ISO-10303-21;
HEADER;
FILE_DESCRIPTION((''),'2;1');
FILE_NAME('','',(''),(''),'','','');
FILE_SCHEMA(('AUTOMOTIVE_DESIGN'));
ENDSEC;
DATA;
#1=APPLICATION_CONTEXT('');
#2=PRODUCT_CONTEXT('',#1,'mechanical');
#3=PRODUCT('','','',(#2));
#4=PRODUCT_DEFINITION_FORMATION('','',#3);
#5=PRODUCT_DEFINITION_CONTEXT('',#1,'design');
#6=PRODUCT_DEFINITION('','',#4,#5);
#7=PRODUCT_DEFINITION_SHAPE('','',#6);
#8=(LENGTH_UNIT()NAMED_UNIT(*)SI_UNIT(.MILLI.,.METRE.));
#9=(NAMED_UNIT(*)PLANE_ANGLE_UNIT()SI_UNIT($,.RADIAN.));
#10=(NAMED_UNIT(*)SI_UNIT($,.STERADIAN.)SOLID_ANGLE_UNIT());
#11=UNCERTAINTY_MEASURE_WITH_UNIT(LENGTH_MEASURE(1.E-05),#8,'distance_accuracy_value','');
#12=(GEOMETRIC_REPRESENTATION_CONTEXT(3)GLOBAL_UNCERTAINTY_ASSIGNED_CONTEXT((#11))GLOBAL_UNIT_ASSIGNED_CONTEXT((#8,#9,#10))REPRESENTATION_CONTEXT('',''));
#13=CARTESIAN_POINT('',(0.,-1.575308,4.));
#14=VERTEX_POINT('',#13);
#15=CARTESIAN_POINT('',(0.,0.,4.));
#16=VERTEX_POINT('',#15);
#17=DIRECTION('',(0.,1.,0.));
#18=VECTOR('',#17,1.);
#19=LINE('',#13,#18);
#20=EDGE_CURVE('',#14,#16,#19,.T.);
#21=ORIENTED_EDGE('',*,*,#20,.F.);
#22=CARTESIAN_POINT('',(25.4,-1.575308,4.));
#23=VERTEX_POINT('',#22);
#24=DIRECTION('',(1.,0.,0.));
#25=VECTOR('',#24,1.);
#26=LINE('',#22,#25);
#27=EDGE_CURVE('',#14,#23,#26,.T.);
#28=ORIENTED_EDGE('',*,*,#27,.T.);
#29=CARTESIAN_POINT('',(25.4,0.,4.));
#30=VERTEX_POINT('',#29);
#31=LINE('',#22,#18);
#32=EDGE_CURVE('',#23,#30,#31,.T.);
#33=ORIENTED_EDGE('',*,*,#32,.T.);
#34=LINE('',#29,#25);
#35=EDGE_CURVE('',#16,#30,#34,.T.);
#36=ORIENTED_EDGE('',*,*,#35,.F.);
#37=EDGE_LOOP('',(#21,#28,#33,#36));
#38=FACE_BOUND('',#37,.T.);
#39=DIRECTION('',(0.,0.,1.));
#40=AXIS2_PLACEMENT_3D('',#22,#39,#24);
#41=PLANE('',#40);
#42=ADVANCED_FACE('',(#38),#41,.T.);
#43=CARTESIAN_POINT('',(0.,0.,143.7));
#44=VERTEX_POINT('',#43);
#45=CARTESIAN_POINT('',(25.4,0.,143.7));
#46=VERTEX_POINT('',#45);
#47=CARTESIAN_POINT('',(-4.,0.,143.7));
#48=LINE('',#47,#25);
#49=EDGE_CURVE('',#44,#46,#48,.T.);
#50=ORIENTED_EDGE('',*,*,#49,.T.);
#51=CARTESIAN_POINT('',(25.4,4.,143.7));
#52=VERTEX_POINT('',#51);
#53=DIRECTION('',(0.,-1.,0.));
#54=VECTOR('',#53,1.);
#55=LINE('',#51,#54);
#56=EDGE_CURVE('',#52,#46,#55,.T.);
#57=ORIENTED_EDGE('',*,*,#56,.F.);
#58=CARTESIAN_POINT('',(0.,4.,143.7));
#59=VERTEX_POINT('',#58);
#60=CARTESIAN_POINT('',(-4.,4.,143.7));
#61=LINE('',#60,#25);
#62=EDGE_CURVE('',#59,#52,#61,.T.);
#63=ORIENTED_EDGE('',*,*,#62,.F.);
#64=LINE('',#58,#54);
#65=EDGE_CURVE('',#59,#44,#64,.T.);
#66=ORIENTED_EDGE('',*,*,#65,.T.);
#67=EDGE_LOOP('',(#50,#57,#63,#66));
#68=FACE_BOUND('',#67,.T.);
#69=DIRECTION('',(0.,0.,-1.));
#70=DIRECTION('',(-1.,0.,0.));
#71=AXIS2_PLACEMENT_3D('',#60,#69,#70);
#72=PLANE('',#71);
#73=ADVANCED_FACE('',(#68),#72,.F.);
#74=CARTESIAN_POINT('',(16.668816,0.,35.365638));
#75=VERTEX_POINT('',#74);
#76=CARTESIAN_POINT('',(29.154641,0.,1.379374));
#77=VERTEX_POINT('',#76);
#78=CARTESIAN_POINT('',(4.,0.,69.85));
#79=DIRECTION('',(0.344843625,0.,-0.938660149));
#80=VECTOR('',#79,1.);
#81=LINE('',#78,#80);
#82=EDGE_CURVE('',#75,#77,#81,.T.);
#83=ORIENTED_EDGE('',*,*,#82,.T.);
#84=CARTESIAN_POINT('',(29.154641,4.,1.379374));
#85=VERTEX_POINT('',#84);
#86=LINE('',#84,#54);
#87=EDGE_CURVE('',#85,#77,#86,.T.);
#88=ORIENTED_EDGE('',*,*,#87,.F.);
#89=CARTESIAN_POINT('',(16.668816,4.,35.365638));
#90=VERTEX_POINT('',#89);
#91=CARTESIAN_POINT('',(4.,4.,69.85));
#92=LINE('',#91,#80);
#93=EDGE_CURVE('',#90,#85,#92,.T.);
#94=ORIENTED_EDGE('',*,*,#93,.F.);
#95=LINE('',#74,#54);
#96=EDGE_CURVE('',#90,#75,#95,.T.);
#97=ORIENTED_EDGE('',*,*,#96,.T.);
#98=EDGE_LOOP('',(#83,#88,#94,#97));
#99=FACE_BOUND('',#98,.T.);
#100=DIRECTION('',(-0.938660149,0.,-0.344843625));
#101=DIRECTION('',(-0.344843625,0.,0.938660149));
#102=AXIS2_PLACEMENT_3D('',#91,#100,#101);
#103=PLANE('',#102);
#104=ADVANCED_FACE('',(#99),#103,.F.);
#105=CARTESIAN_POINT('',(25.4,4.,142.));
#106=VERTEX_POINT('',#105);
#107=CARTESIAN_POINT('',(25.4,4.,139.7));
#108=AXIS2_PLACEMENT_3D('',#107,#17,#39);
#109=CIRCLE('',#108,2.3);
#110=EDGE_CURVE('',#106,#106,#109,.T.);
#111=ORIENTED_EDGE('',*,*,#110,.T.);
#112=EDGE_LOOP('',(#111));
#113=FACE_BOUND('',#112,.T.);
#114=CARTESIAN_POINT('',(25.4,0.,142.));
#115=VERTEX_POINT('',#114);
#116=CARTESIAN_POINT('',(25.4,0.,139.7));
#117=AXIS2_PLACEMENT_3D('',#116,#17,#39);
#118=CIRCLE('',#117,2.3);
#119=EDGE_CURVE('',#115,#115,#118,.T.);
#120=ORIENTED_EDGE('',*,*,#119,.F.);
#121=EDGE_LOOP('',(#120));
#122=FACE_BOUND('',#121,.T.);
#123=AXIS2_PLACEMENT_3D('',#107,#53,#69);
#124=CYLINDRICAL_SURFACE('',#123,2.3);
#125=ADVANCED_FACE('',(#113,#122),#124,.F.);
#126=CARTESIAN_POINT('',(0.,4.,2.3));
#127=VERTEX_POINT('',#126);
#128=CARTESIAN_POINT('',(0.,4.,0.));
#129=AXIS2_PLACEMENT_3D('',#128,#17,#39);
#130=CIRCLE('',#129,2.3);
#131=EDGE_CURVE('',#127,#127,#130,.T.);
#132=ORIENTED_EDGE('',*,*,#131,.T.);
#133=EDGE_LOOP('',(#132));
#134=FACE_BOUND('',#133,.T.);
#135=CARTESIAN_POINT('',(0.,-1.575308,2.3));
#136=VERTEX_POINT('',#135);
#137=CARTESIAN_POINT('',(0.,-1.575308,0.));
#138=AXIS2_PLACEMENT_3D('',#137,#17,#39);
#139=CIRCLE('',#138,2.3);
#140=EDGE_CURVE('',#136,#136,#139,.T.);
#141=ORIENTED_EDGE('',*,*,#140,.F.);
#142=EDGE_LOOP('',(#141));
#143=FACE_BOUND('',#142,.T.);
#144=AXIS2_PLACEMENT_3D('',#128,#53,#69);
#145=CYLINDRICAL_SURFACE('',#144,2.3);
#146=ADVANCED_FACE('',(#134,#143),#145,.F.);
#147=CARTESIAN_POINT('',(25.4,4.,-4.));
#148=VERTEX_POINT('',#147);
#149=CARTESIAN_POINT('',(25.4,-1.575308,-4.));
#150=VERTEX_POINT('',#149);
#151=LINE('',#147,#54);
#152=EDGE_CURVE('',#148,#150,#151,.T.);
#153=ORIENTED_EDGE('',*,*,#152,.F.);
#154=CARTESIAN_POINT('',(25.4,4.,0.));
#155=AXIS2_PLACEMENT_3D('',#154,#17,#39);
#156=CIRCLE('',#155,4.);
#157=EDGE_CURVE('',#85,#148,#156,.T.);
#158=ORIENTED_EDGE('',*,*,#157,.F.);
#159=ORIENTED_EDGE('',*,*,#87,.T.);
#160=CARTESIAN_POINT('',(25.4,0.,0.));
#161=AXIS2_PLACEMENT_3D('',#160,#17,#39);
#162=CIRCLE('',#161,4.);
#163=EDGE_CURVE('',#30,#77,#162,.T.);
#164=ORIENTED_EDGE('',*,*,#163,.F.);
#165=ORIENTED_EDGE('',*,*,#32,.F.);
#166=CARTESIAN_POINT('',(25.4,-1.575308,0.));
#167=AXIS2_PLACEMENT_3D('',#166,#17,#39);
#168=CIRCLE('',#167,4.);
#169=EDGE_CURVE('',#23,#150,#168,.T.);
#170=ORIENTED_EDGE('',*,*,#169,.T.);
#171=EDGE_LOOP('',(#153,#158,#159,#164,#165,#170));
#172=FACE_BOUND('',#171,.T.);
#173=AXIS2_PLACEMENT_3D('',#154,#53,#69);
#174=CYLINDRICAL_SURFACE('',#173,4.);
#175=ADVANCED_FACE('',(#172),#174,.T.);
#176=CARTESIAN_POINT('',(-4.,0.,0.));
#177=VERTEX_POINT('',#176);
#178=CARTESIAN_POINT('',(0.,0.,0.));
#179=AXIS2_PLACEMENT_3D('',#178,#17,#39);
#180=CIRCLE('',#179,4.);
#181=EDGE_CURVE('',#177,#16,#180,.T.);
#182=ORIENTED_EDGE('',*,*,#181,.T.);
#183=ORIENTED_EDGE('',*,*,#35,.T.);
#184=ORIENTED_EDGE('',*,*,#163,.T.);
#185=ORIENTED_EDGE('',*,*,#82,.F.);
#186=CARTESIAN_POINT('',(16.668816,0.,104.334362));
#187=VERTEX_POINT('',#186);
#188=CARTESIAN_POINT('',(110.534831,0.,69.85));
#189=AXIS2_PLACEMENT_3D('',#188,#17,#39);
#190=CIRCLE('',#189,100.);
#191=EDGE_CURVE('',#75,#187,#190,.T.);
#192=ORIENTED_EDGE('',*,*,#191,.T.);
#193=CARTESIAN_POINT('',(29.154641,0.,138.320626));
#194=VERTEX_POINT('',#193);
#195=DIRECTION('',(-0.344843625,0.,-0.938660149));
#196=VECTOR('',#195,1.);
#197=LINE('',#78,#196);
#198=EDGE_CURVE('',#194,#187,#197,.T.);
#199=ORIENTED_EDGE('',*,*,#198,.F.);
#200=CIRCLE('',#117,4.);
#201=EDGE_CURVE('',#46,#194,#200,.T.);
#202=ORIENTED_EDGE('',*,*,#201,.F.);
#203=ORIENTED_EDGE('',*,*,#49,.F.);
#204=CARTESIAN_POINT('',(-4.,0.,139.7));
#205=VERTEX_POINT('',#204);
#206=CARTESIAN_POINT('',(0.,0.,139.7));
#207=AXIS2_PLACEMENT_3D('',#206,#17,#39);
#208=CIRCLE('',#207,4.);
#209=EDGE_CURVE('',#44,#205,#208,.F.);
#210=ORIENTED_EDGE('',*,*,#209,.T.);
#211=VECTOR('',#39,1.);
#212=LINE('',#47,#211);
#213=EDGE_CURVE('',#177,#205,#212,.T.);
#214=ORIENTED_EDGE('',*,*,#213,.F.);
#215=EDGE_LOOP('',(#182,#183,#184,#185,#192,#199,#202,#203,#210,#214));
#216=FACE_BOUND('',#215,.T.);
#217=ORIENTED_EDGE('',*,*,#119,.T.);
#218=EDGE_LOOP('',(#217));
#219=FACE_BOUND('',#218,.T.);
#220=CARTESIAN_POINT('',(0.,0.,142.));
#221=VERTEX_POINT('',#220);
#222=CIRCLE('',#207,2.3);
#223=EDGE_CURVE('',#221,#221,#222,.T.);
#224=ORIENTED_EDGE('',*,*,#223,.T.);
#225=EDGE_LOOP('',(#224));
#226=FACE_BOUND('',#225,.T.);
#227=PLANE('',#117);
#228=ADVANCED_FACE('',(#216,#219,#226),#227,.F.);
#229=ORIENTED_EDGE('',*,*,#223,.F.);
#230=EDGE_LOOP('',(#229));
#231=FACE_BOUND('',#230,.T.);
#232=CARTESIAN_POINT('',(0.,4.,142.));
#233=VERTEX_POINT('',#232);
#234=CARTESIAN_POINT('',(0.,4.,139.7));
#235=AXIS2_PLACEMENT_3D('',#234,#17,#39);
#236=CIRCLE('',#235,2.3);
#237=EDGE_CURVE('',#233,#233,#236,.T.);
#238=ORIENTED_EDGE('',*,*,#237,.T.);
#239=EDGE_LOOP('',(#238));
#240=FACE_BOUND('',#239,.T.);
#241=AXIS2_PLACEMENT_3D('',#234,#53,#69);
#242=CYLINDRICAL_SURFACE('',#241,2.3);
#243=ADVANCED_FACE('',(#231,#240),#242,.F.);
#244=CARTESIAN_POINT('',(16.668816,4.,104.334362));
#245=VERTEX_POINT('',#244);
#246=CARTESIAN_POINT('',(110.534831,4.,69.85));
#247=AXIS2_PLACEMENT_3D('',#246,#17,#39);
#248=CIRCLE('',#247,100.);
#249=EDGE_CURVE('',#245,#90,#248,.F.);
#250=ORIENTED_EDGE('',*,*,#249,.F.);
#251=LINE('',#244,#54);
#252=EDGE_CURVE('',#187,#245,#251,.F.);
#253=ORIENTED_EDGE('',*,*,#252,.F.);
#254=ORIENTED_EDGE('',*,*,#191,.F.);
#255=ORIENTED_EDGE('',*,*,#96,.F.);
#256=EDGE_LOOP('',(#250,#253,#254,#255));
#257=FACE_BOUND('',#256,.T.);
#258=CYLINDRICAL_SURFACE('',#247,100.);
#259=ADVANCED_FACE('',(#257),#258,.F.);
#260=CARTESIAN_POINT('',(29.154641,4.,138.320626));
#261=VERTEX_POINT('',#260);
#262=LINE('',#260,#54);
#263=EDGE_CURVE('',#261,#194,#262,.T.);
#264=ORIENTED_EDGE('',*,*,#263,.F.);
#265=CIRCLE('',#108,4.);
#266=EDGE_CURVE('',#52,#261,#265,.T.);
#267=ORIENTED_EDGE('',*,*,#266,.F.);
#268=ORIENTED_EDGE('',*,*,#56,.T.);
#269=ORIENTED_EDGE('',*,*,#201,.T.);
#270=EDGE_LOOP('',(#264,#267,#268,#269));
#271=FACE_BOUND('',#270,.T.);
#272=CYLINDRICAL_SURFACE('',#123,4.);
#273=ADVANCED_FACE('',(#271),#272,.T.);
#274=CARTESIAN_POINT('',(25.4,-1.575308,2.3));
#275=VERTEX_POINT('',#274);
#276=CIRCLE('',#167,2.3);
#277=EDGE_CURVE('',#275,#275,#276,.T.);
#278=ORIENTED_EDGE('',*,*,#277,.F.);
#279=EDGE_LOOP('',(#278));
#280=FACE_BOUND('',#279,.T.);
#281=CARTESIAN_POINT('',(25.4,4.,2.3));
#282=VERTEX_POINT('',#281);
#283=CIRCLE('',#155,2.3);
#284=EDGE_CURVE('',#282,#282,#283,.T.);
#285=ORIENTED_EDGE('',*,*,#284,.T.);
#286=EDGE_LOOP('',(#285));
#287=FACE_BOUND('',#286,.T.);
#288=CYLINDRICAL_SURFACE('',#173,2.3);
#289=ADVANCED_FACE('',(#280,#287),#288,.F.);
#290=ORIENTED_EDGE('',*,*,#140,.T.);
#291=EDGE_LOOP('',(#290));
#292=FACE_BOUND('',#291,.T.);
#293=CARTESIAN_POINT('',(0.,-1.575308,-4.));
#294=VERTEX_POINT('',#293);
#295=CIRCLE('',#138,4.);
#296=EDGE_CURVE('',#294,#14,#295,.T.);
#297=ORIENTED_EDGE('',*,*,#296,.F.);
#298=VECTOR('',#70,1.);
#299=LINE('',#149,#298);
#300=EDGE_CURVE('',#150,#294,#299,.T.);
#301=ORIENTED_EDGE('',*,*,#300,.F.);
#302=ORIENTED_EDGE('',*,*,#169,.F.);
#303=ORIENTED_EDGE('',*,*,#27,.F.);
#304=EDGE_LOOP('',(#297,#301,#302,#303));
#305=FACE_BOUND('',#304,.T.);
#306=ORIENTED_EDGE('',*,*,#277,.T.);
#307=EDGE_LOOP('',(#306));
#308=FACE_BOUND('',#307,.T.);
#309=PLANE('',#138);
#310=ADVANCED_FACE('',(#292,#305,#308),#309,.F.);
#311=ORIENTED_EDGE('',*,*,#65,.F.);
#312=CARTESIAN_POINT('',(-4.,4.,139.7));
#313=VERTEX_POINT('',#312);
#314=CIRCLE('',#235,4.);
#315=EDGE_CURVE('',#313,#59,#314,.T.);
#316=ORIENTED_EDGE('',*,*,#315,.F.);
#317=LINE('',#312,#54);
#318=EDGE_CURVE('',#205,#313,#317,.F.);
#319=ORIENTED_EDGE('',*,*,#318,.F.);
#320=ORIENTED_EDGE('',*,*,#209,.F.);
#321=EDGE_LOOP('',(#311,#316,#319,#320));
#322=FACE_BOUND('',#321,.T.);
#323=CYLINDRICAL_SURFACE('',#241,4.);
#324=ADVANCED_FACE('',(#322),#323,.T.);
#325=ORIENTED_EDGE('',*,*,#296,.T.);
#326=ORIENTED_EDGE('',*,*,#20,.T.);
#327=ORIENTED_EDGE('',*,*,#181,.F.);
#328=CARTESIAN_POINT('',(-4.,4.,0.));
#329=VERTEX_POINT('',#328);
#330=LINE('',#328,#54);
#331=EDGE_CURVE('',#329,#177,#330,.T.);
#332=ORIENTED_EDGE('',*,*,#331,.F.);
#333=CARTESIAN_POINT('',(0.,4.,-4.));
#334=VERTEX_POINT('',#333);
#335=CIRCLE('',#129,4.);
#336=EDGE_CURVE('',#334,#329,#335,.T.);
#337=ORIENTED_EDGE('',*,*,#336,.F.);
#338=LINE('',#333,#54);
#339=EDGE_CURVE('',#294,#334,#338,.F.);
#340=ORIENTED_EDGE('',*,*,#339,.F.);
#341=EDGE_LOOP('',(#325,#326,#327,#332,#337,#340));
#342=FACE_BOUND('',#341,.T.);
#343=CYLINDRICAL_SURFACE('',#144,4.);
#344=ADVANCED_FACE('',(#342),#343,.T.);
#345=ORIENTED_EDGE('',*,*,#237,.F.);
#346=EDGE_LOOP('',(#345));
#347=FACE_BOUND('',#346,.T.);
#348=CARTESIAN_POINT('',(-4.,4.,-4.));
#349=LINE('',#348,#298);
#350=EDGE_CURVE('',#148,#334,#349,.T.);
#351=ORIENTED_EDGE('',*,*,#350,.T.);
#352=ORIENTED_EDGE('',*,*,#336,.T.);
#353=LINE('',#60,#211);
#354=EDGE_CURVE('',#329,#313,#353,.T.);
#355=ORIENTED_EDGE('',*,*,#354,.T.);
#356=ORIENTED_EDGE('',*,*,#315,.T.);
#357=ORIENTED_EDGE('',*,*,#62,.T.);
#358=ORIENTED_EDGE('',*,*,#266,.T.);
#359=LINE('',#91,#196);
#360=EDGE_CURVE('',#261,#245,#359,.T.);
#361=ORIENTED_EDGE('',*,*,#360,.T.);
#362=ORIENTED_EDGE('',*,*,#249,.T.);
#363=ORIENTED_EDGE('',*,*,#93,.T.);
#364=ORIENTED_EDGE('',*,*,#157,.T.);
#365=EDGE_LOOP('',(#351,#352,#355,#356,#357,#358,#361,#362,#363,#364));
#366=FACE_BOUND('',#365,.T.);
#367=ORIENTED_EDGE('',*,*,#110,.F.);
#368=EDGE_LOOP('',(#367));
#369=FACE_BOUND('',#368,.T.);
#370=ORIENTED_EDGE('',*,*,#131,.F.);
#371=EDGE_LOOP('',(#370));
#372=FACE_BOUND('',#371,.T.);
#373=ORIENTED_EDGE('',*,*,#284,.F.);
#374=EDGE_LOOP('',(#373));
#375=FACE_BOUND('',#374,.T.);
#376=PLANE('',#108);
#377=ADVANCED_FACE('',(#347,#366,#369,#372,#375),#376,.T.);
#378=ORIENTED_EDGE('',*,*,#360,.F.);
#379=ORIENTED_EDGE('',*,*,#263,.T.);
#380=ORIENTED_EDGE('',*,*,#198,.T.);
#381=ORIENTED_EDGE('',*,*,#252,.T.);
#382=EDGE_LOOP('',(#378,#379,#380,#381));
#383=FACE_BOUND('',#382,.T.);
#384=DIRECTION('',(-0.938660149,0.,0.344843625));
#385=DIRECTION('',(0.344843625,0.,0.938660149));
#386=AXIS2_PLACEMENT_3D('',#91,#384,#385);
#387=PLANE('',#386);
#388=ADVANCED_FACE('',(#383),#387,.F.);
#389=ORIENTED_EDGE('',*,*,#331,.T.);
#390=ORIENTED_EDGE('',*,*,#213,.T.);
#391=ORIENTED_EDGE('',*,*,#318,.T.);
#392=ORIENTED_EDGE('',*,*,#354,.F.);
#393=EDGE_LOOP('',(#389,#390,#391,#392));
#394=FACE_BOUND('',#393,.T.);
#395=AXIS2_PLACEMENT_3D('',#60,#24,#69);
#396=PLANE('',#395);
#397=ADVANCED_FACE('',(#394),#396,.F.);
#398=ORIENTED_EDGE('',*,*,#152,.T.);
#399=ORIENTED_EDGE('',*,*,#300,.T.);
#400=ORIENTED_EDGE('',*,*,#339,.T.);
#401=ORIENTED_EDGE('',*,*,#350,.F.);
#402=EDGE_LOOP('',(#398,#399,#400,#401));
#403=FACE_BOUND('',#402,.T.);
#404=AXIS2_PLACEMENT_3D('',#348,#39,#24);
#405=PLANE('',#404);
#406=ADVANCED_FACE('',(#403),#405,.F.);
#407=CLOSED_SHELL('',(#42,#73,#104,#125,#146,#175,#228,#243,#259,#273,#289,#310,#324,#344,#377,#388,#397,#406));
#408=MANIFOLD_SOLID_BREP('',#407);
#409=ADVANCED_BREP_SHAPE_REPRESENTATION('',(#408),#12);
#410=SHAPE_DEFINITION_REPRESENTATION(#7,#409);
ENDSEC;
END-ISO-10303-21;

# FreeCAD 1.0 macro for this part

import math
import FreeCAD as App
import Part
import Sketcher

V = App.Vector


def edges_at(feature, points):
    """Names of the edges that pass closest to the given points."""
    edges = feature.Shape.Edges
    near = lambda p: min(range(len(edges)), key=lambda i: edges[i].distToShape(Part.Vertex(*p))[0])
    return sorted({f"Edge{near(p) + 1}" for p in points})

doc = App.newDocument("Part")
body = doc.addObject("PartDesign::Body", "Body")

sketch1 = body.newObject("Sketcher::SketchObject", "Sketch")
sketch1.AttachmentSupport = (doc.getObject("XZ_Plane"), [""])
sketch1.MapMode = "FlatFace"
sketch1.addGeometry([
    Part.LineSegment(V(-4, -4, 0), V(-4, 143.7, 0)),
    Part.LineSegment(V(-4, 143.7, 0), V(25.4, 143.7, 0)),
    Part.ArcOfCircle(Part.Circle(V(25.4, 139.7, 0), V(0, 0, 1), 4), math.radians(-20.17225), math.radians(90)),
    Part.LineSegment(V(29.154641, 138.320626, 0), V(4, 69.85, 0)),
    Part.LineSegment(V(4, 69.85, 0), V(29.154641, 1.379374, 0)),
    Part.ArcOfCircle(Part.Circle(V(25.4, 0, 0), V(0, 0, 1), 4), math.radians(-90), math.radians(20.17225)),
    Part.LineSegment(V(25.4, -4, 0), V(-4, -4, 0)),
    Part.Circle(V(25.4, 139.7, 0), V(0, 0, 1), 2.3),
    Part.Circle(V(0, 139.7, 0), V(0, 0, 1), 2.3),
    Part.Circle(V(25.4, 0, 0), V(0, 0, 1), 2.3),
    Part.Circle(V(0, 0, 0), V(0, 0, 1), 2.3),
], False)
sketch1.addConstraint([
    Sketcher.Constraint("Coincident", 0, 2, 1, 1),
    Sketcher.Constraint("Tangent", 1, 2, 2, 2),
    Sketcher.Constraint("Tangent", 2, 1, 3, 1),
    Sketcher.Constraint("Coincident", 3, 2, 4, 1),
    Sketcher.Constraint("Tangent", 4, 2, 5, 2),
    Sketcher.Constraint("Tangent", 5, 1, 6, 1),
    Sketcher.Constraint("Coincident", 6, 2, 0, 1),
    Sketcher.Constraint("Vertical", 0),
    Sketcher.Constraint("Horizontal", 1),
    Sketcher.Constraint("Horizontal", 6),
    Sketcher.Constraint("Coincident", 10, 3, -1, 1),
    Sketcher.Constraint("Coincident", 7, 3, 2, 3),
    Sketcher.Constraint("Coincident", 9, 3, 5, 3),
    Sketcher.Constraint("Equal", 2, 5),
    Sketcher.Constraint("Equal", 7, 8),
    Sketcher.Constraint("Equal", 8, 9),
    Sketcher.Constraint("Equal", 9, 10),
    Sketcher.Constraint("PointOnObject", 5, 3, -1),
    Sketcher.Constraint("PointOnObject", 8, 3, -2),
    Sketcher.Constraint("Horizontal", 7, 3, 8, 3),
    Sketcher.Constraint("Vertical", 2, 3, 5, 3),
    Sketcher.Constraint("Vertical", 2, 1, 4, 2),
    Sketcher.Constraint("Radius", 2, 4.0),
    Sketcher.Constraint("Diameter", 7, 4.6),
    Sketcher.Constraint("DistanceX", 1, 1, 1, 2, 29.4),
    Sketcher.Constraint("DistanceY", 0, 1, 0, 2, 147.7),
    Sketcher.Constraint("DistanceX", 0, 2, -1, 1, 4.0),
    Sketcher.Constraint("DistanceX", -1, 1, 3, 2, 4.0),
])
pad1 = body.newObject("PartDesign::Pad", "Pad")
pad1.Profile = sketch1
pad1.Length = 4
pad1.Reversed = True
doc.recompute()

fillet = body.newObject("PartDesign::Fillet", "Fillet")
fillet.Base = (pad1, edges_at(pad1, [(-4, 2, 143.7), (-4, 2, -4)]))
fillet.Radius = 4
doc.recompute()

fillet2 = body.newObject("PartDesign::Fillet", "Fillet001")
fillet2.Base = (fillet, edges_at(fillet, [(4, 2, 69.85)]))
fillet2.Radius = 100

sketch2 = body.newObject("Sketcher::SketchObject", "Sketch001")
sketch2.AttachmentSupport = (doc.getObject("XZ_Plane"), [""])
sketch2.MapMode = "FlatFace"
sketch2.AttachmentOffset = App.Placement(V(0, 0, 1.575308), App.Rotation())
sketch2.addGeometry([
    Part.LineSegment(V(0, 4, 0), V(25.4, 4, 0)),
    Part.ArcOfCircle(Part.Circle(V(25.4, 0, 0), V(0, 0, 1), 4), math.radians(-90), math.radians(90)),
    Part.LineSegment(V(25.4, -4, 0), V(0, -4, 0)),
    Part.ArcOfCircle(Part.Circle(V(0, 0, 0), V(0, 0, 1), 4), math.radians(90), math.radians(270)),
    Part.Circle(V(0, 0, 0), V(0, 0, 1), 2.3),
    Part.Circle(V(25.4, 0, 0), V(0, 0, 1), 2.3),
], False)
sketch2.addConstraint([
    Sketcher.Constraint("Tangent", 0, 2, 1, 2),
    Sketcher.Constraint("Tangent", 1, 1, 2, 1),
    Sketcher.Constraint("Tangent", 2, 2, 3, 2),
    Sketcher.Constraint("Tangent", 3, 1, 0, 1),
    Sketcher.Constraint("Horizontal", 0),
    Sketcher.Constraint("Horizontal", 2),
    Sketcher.Constraint("Coincident", 3, 3, -1, 1),
    Sketcher.Constraint("Coincident", 4, 3, -1, 1),
    Sketcher.Constraint("Coincident", 5, 3, 1, 3),
    Sketcher.Constraint("Equal", 4, 5),
    Sketcher.Constraint("Radius", 1, 4.0),
    Sketcher.Constraint("Diameter", 4, 4.6),
    Sketcher.Constraint("DistanceX", 0, 1, 0, 2, 25.4),
])
pad2 = body.newObject("PartDesign::Pad", "Pad001")
pad2.Profile = sketch2
pad2.Length = 1.575308
pad2.Reversed = True

doc.recompute()
